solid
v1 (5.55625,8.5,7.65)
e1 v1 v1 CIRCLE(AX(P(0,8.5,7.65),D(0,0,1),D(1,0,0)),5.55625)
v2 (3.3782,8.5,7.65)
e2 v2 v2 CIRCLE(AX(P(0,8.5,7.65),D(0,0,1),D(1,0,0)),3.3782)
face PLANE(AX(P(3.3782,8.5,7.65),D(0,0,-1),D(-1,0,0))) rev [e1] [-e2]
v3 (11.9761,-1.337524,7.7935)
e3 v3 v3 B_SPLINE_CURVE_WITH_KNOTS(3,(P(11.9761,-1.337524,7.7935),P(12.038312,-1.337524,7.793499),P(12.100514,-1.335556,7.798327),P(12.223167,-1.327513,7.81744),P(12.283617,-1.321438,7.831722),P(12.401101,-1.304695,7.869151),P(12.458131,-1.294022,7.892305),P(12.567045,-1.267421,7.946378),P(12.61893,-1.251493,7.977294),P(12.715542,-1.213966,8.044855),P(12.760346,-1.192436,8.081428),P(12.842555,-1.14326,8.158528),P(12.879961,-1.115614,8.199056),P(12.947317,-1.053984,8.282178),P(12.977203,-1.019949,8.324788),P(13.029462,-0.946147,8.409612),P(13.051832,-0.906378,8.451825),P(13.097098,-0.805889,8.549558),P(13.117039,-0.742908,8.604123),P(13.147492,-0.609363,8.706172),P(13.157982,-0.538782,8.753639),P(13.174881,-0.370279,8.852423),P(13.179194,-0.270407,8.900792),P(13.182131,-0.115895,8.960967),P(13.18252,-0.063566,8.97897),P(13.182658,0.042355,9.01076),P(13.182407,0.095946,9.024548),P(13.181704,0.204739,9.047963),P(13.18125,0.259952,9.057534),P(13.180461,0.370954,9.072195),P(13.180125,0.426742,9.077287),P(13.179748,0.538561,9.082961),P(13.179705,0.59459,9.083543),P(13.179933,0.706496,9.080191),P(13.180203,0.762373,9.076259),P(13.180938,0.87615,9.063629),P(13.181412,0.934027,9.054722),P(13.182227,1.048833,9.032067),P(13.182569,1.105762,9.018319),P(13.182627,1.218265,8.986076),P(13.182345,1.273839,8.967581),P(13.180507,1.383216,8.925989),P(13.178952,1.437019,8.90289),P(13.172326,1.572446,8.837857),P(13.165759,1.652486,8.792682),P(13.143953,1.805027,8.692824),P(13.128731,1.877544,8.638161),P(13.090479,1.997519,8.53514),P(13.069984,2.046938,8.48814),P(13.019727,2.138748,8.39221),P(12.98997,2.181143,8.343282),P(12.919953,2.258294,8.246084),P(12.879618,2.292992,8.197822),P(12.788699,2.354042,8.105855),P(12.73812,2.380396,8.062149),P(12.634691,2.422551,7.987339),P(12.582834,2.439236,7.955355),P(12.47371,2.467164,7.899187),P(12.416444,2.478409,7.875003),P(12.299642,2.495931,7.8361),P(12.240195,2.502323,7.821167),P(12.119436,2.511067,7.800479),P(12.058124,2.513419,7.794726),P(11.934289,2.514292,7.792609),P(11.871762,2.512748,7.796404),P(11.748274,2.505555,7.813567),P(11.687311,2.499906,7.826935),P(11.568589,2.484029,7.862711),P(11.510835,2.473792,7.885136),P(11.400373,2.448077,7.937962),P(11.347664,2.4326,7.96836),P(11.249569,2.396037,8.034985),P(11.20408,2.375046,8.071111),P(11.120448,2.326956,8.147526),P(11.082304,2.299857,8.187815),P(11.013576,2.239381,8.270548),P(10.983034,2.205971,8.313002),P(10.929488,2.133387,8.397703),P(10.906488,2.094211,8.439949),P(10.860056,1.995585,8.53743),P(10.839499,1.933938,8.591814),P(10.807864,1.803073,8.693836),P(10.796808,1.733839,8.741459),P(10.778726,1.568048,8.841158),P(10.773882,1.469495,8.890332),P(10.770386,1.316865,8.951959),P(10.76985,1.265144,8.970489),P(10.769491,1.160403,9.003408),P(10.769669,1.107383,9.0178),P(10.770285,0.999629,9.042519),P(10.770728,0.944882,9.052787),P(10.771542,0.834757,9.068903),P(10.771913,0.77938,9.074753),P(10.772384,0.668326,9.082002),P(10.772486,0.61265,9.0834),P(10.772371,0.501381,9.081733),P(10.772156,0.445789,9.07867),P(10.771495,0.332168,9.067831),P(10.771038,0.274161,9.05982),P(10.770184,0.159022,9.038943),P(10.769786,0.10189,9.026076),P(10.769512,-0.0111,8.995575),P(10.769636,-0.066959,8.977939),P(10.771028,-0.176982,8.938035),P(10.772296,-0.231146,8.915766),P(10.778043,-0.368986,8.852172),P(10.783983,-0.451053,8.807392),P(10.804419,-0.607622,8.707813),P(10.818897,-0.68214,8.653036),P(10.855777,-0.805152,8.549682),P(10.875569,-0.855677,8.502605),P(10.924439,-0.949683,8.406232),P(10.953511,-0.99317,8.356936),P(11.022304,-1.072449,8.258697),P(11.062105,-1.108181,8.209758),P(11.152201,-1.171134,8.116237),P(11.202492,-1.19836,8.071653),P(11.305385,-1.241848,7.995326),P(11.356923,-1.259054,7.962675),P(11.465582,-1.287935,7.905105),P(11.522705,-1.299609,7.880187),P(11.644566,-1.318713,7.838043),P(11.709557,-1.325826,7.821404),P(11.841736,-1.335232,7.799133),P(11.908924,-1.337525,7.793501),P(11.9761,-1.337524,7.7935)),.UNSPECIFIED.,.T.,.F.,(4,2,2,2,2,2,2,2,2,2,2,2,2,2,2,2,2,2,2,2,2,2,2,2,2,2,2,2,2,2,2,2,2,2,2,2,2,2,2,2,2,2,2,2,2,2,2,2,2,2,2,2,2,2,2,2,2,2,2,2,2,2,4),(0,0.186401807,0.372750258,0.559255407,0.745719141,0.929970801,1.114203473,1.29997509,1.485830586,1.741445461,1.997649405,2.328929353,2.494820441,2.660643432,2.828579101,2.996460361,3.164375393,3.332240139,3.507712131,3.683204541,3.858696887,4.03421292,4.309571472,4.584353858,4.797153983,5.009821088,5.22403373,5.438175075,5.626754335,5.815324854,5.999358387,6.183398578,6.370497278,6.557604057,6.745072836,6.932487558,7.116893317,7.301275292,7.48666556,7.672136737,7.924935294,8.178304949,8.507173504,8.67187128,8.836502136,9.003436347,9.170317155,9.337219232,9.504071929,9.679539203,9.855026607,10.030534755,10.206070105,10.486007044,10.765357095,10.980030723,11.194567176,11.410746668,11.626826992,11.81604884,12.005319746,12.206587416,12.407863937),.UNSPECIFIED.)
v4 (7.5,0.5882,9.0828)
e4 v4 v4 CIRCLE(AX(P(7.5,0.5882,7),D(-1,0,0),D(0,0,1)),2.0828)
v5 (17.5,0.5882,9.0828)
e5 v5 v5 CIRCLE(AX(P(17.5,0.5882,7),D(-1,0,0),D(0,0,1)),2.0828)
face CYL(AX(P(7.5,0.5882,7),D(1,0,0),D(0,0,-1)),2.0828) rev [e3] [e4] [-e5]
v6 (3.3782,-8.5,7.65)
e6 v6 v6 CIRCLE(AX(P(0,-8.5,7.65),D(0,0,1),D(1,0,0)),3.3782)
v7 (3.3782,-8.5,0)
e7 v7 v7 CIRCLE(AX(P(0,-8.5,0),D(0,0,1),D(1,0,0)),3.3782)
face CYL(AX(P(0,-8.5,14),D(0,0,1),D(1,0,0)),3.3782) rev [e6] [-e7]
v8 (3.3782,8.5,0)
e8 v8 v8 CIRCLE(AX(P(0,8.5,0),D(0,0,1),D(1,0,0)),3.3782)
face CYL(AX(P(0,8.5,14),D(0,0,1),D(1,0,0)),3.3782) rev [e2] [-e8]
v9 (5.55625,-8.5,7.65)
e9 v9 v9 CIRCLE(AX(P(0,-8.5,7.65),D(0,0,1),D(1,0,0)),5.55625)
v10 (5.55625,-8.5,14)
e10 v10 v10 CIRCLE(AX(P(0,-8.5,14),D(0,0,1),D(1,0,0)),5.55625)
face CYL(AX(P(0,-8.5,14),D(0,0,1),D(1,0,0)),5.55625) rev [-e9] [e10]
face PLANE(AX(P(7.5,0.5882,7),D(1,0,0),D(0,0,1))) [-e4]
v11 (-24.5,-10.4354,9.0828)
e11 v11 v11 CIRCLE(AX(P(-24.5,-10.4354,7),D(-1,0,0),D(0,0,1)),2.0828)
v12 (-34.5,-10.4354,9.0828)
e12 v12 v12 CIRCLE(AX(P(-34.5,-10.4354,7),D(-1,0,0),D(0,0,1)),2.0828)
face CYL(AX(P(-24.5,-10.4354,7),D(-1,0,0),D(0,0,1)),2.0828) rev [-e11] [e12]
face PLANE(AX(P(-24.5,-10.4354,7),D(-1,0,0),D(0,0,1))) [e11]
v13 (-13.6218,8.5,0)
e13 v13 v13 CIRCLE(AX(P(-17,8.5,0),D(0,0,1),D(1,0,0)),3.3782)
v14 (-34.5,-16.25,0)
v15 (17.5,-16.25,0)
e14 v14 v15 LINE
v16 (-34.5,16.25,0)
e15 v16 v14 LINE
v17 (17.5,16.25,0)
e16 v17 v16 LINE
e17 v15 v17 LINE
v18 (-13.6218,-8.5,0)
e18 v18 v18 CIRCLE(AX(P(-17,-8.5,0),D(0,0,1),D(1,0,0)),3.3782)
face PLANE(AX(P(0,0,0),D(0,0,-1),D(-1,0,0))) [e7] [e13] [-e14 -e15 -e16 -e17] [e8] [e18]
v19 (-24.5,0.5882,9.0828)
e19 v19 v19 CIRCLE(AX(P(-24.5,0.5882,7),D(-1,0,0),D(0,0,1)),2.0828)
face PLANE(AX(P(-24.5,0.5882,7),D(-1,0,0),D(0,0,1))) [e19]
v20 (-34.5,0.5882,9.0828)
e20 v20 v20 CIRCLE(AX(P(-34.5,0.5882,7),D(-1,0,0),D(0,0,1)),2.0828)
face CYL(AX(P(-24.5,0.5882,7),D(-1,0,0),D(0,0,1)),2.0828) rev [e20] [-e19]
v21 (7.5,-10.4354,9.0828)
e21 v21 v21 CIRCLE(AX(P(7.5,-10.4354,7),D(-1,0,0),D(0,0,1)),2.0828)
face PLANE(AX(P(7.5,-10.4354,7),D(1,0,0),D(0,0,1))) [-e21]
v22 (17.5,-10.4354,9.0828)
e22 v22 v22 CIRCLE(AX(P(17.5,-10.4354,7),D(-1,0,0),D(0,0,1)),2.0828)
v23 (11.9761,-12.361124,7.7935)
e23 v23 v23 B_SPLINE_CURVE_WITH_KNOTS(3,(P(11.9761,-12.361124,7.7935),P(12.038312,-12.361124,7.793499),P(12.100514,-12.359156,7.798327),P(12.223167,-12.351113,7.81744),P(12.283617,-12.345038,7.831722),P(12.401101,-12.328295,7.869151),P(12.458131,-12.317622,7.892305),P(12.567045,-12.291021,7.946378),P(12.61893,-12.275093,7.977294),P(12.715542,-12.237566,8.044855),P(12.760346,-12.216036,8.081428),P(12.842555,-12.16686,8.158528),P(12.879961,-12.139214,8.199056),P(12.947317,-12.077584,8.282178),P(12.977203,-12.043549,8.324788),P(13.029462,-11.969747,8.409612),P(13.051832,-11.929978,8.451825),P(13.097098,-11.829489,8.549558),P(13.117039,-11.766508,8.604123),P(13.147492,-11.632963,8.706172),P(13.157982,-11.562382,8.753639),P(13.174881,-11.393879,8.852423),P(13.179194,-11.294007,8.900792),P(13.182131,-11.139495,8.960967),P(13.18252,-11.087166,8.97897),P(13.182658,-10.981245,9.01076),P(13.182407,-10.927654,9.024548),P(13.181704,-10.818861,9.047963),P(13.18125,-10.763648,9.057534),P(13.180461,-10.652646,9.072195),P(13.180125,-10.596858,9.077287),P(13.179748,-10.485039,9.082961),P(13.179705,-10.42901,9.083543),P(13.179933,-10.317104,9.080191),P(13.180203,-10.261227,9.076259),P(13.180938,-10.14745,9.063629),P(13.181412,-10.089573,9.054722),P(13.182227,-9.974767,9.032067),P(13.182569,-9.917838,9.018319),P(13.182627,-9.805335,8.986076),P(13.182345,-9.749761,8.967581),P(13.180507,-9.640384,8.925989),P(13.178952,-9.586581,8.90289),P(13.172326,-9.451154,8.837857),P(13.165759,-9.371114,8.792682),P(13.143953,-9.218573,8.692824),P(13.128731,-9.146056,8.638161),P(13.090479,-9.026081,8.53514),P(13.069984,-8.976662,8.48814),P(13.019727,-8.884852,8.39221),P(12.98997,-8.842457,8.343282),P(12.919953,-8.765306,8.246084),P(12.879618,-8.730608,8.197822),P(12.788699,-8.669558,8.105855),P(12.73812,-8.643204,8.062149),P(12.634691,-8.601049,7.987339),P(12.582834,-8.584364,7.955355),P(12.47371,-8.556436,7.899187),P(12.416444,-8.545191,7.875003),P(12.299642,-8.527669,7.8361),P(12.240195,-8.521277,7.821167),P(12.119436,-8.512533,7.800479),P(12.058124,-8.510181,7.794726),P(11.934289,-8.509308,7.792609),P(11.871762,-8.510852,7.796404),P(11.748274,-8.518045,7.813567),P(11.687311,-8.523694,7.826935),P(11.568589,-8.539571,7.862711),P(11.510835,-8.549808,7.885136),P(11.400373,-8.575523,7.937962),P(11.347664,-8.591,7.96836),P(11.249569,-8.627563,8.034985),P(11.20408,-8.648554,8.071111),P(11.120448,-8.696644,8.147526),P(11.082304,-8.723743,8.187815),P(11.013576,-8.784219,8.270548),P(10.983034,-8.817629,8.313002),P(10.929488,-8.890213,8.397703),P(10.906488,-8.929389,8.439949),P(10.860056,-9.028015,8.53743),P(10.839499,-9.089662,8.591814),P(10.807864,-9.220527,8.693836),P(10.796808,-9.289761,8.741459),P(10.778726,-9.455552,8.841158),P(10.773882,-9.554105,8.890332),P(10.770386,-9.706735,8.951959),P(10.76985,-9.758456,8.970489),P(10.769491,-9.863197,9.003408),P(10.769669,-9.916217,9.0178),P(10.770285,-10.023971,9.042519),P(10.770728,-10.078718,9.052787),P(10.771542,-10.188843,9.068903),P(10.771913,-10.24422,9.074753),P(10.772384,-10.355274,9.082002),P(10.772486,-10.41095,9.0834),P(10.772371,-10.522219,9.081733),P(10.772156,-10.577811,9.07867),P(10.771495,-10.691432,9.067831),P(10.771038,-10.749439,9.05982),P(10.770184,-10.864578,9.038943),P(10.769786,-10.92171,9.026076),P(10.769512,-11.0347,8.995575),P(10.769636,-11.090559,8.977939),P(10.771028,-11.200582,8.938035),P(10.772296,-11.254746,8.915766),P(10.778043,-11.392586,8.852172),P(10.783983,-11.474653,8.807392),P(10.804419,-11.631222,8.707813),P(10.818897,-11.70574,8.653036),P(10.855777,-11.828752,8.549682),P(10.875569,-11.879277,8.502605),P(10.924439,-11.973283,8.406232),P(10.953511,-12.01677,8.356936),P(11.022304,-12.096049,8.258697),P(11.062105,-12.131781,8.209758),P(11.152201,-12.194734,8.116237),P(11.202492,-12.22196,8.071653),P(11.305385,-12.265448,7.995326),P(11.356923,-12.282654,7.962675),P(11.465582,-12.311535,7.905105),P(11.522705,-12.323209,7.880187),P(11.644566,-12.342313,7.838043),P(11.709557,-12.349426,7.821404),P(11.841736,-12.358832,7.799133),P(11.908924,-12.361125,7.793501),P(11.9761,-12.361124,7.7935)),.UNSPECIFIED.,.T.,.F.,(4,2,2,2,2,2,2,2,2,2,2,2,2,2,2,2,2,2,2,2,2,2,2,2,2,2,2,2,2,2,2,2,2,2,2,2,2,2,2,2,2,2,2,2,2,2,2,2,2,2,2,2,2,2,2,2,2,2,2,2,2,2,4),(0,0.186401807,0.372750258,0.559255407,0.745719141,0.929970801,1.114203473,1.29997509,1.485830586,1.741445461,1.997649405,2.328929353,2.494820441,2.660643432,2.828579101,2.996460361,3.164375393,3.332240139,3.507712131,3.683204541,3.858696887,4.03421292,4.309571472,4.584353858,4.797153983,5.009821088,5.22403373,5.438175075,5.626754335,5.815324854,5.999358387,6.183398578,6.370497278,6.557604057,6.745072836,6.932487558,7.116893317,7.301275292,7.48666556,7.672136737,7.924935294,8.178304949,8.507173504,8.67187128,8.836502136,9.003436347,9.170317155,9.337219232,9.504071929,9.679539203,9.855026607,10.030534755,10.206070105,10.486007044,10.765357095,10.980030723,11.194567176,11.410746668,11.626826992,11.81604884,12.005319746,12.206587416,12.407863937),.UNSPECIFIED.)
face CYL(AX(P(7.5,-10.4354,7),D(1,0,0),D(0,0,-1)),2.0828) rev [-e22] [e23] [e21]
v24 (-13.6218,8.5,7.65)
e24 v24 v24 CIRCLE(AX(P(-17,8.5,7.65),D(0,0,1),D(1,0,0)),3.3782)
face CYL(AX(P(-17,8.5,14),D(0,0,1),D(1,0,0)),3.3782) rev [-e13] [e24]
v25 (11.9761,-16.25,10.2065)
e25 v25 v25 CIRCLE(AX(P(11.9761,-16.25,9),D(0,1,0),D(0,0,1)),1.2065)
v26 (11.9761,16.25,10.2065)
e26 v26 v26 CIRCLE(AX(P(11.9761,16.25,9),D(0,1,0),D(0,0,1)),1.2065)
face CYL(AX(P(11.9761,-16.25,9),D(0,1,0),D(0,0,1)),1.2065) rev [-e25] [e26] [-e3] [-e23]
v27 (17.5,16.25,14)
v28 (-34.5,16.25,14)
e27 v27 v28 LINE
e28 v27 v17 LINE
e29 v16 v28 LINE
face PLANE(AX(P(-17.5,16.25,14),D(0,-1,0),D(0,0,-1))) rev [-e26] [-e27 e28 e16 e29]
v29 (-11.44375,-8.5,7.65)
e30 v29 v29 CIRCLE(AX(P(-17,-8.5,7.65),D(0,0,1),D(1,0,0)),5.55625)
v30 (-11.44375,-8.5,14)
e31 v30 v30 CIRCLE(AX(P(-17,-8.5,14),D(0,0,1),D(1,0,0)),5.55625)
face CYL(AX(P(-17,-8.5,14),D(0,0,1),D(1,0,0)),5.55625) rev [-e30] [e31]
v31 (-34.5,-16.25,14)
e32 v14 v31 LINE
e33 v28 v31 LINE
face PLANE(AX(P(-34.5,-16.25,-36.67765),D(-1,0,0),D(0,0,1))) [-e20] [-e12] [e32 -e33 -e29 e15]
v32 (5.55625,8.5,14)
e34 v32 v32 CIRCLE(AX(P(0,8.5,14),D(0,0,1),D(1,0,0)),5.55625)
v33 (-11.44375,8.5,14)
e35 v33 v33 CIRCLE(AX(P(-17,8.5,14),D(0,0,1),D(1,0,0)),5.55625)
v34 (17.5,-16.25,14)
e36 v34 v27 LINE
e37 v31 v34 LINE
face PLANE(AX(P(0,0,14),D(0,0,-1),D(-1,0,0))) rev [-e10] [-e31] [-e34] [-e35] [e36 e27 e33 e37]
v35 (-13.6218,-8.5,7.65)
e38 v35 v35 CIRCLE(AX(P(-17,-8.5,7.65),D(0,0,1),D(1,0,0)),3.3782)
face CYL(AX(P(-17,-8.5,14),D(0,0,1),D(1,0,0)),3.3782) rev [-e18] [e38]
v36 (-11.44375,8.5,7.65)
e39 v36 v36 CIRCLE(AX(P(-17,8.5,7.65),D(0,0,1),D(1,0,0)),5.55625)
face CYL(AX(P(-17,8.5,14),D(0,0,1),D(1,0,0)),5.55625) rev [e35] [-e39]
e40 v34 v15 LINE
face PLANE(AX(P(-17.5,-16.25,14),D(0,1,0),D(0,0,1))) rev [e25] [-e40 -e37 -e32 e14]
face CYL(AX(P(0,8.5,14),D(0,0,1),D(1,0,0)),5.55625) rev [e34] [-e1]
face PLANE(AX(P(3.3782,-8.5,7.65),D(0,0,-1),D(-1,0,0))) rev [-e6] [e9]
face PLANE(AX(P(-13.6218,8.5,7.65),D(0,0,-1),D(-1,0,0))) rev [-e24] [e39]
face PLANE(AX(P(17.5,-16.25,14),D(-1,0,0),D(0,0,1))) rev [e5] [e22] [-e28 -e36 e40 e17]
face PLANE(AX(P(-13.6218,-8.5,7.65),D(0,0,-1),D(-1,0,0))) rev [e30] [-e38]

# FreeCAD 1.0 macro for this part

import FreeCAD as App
import Part
import Sketcher

V = App.Vector


def add_polygon(sketch, points):
    """Adds a closed chain of lines whose ends are joined by coincident constraints."""
    first, n = sketch.GeometryCount, len(points)
    for a, b in zip(points, points[1:] + points[:1]):
        sketch.addGeometry(Part.LineSegment(App.Vector(*a, 0), App.Vector(*b, 0)), False)
    for i in range(n):
        sketch.addConstraint(Sketcher.Constraint("Coincident", first + i, 2, first + (i + 1) % n, 1))

doc = App.newDocument("Part")
body = doc.addObject("PartDesign::Body", "Body")

sketch1 = body.newObject("Sketcher::SketchObject", "Sketch")
sketch1.AttachmentSupport = (doc.getObject("XY_Plane"), [""])
sketch1.MapMode = "FlatFace"
add_polygon(sketch1, [(-18, 16), (-18, -16), (18, -16), (18, 16)])
sketch1.addConstraint([
    Sketcher.Constraint("Vertical", 0),
    Sketcher.Constraint("Horizontal", 1),
    Sketcher.Constraint("Vertical", 2),
    Sketcher.Constraint("Horizontal", 3),
    Sketcher.Constraint("Symmetric", 0, 2, 2, 2, -1, 1),
    Sketcher.Constraint("DistanceX", 1, 1, 1, 2, 35.0),
    Sketcher.Constraint("DistanceY", 0, 2, 0, 1, 32.5),
])
pad1 = body.newObject("PartDesign::Pad", "Pad")
pad1.Profile = sketch1
pad1.Length = 14

sketch2 = body.newObject("Sketcher::SketchObject", "Sketch001")
sketch2.AttachmentSupport = (doc.getObject("XY_Plane"), [""])
sketch2.MapMode = "FlatFace"
sketch2.AttachmentOffset = App.Placement(V(0, 0, 14), App.Rotation())
sketch2.addGeometry([
    Part.Circle(V(0, -8.5, 0), V(0, 0, 1), 3.4),
    Part.Circle(V(0, 8.5, 0), V(0, 0, 1), 3.4),
], False)
sketch2.addConstraint([
    Sketcher.Constraint("Equal", 0, 1),
    Sketcher.Constraint("Symmetric", 0, 3, 1, 3, -1, 1),
    Sketcher.Constraint("PointOnObject", 0, 3, -2),
    Sketcher.Constraint("DistanceY", 0, 3, 1, 3, 17.0),
    Sketcher.Constraint("Diameter", 0, 6.7564),
])
doc.recompute()
hole = body.newObject("PartDesign::Hole", "Hole")
hole.Profile = sketch2
hole.ThreadType = "None"
hole.Diameter = 6.7564
hole.DepthType = "ThroughAll"
hole.HoleCutType = "Counterbore"
hole.HoleCutDiameter = 11.1125
hole.HoleCutDepth = 6.35

sketch3 = body.newObject("Sketcher::SketchObject", "Sketch002")
sketch3.AttachmentSupport = (doc.getObject("XZ_Plane"), [""])
sketch3.MapMode = "FlatFace"
sketch3.AttachmentOffset = App.Placement(V(0, 0, -16.25), App.Rotation())
sketch3.addGeometry(Part.Circle(V(12, 9, 0), V(0, 0, 1), 1.2), False)
sketch3.addConstraint([
    Sketcher.Constraint("Diameter", 0, 2.413),
    Sketcher.Constraint("DistanceY", -1, 1, 0, 3, 9.0),
    Sketcher.Constraint("DistanceX", -1, 1, 0, 3, 11.9761),
])
pocket1 = body.newObject("PartDesign::Pocket", "Pocket")
pocket1.Profile = sketch3
pocket1.Type = "ThroughAll"
pocket1.Reversed = True

sketch4 = body.newObject("Sketcher::SketchObject", "Sketch003")
sketch4.AttachmentSupport = (doc.getObject("XY_Plane"), [""])
sketch4.MapMode = "FlatFace"
sketch4.AttachmentOffset = App.Placement(V(0, 0, 14), App.Rotation())
add_polygon(sketch4, [(-34, 16), (-34, -16), (-18, -16), (-18, 16)])
sketch4.addConstraint([
    Sketcher.Constraint("Vertical", 0),
    Sketcher.Constraint("Horizontal", 1),
    Sketcher.Constraint("Vertical", 2),
    Sketcher.Constraint("Horizontal", 3),
    Sketcher.Constraint("DistanceX", 1, 1, 1, 2, 17.0),
    Sketcher.Constraint("DistanceY", 0, 2, 0, 1, 32.5),
    Sketcher.Constraint("DistanceX", 0, 2, -1, 1, 34.5),
    Sketcher.Constraint("DistanceY", 0, 2, -1, 1, 16.25),
])
pad2 = body.newObject("PartDesign::Pad", "Pad001")
pad2.Profile = sketch4
pad2.Length = 14
pad2.Reversed = True

sketch5 = body.newObject("Sketcher::SketchObject", "Sketch004")
sketch5.AttachmentSupport = (doc.getObject("XY_Plane"), [""])
sketch5.MapMode = "FlatFace"
sketch5.AttachmentOffset = App.Placement(V(0, 0, 14), App.Rotation())
sketch5.addGeometry([
    Part.Circle(V(-17, 8.5, 0), V(0, 0, 1), 3.4),
    Part.Circle(V(-17, -8.5, 0), V(0, 0, 1), 3.4),
], False)
sketch5.addConstraint([
    Sketcher.Constraint("Equal", 0, 1),
    Sketcher.Constraint("Symmetric", 0, 3, 1, 3, -1),
    Sketcher.Constraint("DistanceX", 0, 3, -1, 1, 17.0),
    Sketcher.Constraint("DistanceY", 1, 3, 0, 3, 17.0),
    Sketcher.Constraint("Diameter", 0, 6.7564),
])
doc.recompute()
hole2 = body.newObject("PartDesign::Hole", "Hole001")
hole2.Profile = sketch5
hole2.ThreadType = "None"
hole2.Diameter = 6.7564
hole2.DepthType = "ThroughAll"
hole2.HoleCutType = "Counterbore"
hole2.HoleCutDiameter = 11.1125
hole2.HoleCutDepth = 6.35

sketch6 = body.newObject("Sketcher::SketchObject", "Sketch005")
sketch6.AttachmentSupport = (doc.getObject("YZ_Plane"), [""])
sketch6.MapMode = "FlatFace"
sketch6.AttachmentOffset = App.Placement(V(0, 0, -34.5), App.Rotation())
sketch6.addGeometry([
    Part.Circle(V(0.6, 7, 0), V(0, 0, 1), 2.1),
    Part.Circle(V(-10.4, 7, 0), V(0, 0, 1), 2.1),
], False)
sketch6.addConstraint([
    Sketcher.Constraint("Equal", 0, 1),
    Sketcher.Constraint("Horizontal", 0, 3, 1, 3),
    Sketcher.Constraint("DistanceY", -1, 1, 0, 3, 7.0),
    Sketcher.Constraint("Diameter", 0, 4.1656),
    Sketcher.Constraint("DistanceX", -1, 1, 0, 3, 0.5882),
    Sketcher.Constraint("DistanceX", 1, 3, -1, 1, 10.4354),
])
pocket2 = body.newObject("PartDesign::Pocket", "Pocket001")
pocket2.Profile = sketch6
pocket2.Length = 10
pocket2.Reversed = True
doc.recompute()

datumplane = body.newObject("PartDesign::Plane", "DatumPlane")
datumplane.AttachmentSupport = (doc.getObject("YZ_Plane"), [""])
datumplane.MapMode = "FlatFace"
datumplane.AttachmentOffset = App.Placement(V(0, 0, -8.5), App.Rotation())
mirrored = body.newObject("PartDesign::Mirrored", "Mirrored")
mirrored.Originals = [pocket2]
mirrored.MirrorPlane = (datumplane, [""])
body.Tip = mirrored

doc.recompute()
